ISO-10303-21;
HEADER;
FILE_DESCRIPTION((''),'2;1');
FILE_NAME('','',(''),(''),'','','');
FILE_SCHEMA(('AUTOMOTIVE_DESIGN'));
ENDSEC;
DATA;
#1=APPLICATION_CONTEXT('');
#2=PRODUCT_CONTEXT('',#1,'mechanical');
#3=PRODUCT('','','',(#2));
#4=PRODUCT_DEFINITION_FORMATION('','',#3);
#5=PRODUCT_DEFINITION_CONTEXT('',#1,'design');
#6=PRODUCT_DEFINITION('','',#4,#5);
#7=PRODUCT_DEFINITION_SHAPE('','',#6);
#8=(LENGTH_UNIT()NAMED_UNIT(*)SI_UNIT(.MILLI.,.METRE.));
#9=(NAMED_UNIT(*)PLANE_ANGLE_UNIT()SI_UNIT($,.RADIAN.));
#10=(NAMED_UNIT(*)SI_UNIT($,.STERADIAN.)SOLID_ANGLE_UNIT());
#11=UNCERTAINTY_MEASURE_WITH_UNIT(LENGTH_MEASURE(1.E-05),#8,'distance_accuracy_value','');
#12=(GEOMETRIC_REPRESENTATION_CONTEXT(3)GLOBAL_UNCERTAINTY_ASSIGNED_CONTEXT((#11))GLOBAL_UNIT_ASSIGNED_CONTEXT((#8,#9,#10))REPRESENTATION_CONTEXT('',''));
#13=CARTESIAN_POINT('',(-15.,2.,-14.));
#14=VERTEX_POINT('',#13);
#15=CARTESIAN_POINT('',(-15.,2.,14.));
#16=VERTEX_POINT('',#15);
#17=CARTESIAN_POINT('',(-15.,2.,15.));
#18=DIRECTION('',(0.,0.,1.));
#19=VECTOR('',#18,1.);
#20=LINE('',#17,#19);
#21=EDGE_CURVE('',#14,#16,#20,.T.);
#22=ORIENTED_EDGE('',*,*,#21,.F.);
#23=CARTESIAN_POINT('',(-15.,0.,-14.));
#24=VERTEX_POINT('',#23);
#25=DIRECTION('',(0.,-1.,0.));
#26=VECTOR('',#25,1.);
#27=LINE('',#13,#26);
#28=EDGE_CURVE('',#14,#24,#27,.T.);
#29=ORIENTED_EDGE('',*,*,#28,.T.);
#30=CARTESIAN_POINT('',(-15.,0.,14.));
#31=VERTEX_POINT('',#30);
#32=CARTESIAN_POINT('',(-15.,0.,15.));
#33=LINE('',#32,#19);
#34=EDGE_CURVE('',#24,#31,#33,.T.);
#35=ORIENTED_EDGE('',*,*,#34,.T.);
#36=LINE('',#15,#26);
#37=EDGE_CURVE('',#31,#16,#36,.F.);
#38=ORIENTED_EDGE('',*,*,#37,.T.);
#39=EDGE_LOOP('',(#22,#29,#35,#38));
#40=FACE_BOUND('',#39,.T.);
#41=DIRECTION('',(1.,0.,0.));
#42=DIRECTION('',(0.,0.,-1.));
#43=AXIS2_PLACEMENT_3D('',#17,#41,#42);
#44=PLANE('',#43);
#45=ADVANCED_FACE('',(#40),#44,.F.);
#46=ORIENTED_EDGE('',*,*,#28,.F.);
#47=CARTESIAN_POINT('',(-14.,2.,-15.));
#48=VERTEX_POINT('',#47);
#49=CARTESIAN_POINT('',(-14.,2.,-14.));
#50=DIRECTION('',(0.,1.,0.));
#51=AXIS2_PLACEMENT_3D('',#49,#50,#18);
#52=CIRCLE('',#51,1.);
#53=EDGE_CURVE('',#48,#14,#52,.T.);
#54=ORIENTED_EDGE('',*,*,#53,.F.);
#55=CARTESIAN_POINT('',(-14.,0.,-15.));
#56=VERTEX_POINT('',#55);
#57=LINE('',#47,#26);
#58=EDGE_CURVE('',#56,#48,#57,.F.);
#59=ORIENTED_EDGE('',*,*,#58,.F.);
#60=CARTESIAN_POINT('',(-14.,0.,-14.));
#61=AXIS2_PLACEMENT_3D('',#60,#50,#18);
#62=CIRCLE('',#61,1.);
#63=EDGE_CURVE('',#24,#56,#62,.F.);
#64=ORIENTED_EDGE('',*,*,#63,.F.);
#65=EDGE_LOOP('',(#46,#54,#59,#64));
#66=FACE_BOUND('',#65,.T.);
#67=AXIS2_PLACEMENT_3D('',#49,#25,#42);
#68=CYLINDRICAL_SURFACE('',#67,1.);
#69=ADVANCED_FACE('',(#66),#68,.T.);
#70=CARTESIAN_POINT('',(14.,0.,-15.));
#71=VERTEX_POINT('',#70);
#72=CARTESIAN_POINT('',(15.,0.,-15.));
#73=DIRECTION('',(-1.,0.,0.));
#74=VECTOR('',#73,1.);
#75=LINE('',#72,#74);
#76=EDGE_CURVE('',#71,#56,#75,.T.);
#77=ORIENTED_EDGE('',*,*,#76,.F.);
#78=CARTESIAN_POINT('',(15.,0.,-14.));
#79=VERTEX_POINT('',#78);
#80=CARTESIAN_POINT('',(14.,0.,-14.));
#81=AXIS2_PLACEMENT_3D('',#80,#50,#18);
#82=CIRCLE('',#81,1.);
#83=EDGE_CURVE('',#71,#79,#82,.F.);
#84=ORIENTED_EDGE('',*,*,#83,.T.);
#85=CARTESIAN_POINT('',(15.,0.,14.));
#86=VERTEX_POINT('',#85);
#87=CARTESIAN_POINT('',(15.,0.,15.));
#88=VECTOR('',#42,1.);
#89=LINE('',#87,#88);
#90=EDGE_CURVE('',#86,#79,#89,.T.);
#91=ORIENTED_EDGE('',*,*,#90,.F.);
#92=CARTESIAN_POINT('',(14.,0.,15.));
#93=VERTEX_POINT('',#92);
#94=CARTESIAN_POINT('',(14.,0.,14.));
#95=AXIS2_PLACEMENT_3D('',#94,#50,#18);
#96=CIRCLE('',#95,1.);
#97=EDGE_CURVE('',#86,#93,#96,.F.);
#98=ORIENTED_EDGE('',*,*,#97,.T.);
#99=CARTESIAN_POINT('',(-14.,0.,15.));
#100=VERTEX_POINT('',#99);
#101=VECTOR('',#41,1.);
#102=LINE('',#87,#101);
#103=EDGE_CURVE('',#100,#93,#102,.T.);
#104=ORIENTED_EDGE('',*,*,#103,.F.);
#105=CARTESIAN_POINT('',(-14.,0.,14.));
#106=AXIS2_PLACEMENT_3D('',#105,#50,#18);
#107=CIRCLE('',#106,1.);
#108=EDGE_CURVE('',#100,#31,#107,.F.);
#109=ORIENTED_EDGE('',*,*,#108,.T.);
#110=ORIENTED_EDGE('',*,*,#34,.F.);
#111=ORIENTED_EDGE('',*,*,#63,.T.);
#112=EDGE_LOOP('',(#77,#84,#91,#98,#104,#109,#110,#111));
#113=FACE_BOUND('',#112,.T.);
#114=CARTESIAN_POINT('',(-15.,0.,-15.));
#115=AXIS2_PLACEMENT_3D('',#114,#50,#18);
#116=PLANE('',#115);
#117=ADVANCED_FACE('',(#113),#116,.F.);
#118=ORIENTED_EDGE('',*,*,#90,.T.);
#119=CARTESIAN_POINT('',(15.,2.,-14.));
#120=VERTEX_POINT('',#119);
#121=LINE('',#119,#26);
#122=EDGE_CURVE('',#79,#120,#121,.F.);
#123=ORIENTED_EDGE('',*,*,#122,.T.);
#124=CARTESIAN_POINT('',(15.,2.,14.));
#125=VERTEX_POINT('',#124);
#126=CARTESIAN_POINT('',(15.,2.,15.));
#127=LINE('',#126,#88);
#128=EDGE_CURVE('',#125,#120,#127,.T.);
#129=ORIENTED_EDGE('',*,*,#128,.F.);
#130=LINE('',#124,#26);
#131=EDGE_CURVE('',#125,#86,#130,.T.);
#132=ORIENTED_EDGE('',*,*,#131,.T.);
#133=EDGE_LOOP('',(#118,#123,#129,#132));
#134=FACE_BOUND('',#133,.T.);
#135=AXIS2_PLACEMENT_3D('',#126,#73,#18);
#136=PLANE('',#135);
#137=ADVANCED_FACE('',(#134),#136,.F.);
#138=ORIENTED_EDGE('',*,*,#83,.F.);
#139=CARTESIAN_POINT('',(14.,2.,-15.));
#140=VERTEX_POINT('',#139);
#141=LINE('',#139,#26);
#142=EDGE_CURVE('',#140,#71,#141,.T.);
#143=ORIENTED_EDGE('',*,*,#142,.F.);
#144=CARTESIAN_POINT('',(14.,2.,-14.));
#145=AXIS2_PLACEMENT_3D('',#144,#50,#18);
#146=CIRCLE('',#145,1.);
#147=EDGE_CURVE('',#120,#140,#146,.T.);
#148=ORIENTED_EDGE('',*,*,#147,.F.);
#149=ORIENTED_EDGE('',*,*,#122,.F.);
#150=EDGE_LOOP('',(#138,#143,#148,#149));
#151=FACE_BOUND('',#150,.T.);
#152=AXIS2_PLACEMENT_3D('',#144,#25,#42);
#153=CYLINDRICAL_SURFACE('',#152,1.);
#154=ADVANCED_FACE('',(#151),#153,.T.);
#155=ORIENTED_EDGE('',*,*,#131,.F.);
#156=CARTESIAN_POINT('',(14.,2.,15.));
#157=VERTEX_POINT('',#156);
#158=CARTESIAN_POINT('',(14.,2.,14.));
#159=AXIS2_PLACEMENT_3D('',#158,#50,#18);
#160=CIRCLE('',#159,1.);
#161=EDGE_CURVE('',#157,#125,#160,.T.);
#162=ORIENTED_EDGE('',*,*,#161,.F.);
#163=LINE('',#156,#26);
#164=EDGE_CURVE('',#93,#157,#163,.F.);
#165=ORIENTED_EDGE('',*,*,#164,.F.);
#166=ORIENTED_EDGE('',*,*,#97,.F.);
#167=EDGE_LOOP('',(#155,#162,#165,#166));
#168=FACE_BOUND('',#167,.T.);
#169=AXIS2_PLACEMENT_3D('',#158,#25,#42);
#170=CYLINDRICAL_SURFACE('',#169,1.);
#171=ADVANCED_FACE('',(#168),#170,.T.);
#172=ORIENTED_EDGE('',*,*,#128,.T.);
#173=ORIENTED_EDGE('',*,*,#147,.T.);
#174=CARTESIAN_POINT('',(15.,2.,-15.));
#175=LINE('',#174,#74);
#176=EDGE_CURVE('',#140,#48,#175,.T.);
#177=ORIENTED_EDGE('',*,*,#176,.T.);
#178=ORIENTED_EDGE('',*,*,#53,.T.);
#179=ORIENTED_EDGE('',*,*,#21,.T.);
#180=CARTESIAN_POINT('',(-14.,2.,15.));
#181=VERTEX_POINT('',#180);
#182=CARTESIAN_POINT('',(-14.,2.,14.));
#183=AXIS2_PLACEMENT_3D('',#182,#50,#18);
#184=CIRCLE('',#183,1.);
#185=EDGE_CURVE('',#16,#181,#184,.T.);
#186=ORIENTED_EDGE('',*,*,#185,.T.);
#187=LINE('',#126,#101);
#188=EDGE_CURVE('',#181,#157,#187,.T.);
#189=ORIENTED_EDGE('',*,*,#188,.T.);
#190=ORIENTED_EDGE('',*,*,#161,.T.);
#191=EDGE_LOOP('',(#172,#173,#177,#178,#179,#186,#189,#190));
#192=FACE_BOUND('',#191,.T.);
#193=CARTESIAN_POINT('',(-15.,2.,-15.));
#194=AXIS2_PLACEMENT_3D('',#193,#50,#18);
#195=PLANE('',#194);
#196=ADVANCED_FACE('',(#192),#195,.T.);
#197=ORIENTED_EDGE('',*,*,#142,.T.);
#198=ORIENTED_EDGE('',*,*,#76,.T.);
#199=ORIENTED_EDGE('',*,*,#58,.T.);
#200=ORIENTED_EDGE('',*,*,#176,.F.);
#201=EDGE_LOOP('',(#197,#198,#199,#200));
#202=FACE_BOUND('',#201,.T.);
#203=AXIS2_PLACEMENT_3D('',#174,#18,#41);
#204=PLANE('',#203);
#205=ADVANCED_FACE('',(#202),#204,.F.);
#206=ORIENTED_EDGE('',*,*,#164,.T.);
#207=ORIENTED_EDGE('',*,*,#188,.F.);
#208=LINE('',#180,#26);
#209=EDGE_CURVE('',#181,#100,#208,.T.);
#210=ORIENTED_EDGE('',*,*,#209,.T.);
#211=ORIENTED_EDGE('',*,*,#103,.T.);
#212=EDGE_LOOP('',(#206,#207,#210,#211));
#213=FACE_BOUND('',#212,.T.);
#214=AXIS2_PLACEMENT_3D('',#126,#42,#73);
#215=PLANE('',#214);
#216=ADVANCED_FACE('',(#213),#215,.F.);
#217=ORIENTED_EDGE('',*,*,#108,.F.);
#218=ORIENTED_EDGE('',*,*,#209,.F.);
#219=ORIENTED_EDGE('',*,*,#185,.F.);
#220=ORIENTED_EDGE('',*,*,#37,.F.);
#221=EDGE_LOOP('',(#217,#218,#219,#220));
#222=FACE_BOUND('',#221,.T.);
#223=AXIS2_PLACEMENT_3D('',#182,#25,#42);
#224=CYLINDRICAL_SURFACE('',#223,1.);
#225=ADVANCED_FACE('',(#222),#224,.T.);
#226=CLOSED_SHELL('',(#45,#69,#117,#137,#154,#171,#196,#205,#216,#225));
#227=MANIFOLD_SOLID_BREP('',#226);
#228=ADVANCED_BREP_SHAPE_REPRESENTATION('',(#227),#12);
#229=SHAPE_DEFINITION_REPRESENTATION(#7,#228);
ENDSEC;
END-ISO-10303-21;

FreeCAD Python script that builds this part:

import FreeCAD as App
import Part
import Sketcher
from FreeCAD import Vector
Q = App.Units.Quantity


def edges_at(feature, points):
    """Names of the edges that pass closest to the given points."""
    edges = feature.Shape.Edges
    near = lambda p: min(range(len(edges)), key=lambda i: edges[i].distToShape(Part.Vertex(*p))[0])
    return sorted({f"Edge{near(p) + 1}" for p in points})

doc = App.newDocument("Part")
body = doc.addObject("PartDesign::Body", "Body")

sketch1 = body.newObject("Sketcher::SketchObject", "Sketch")
sketch1.AttachmentSupport = (doc.getObject("XZ_Plane"), [""])
sketch1.MapMode = "FlatFace"
sketch1.addGeometry(Part.LineSegment(Vector(-15, -15, 0), Vector(-15, 15, 0)), False)
sketch1.addGeometry(Part.LineSegment(Vector(-15, 15, 0), Vector(15, 15, 0)), False)
sketch1.addGeometry(Part.LineSegment(Vector(15, 15, 0), Vector(15, -15, 0)), False)
sketch1.addGeometry(Part.LineSegment(Vector(15, -15, 0), Vector(-15, -15, 0)), False)
sketch1.addConstraint(Sketcher.Constraint("Coincident", 0, 2, 1, 1))
sketch1.addConstraint(Sketcher.Constraint("Coincident", 1, 2, 2, 1))
sketch1.addConstraint(Sketcher.Constraint("Coincident", 2, 2, 3, 1))
sketch1.addConstraint(Sketcher.Constraint("Coincident", 3, 2, 0, 1))
sketch1.addConstraint(Sketcher.Constraint("Vertical", 0))
sketch1.addConstraint(Sketcher.Constraint("Horizontal", 1))
sketch1.addConstraint(Sketcher.Constraint("Vertical", 2))
sketch1.addConstraint(Sketcher.Constraint("Horizontal", 3))
sketch1.addConstraint(Sketcher.Constraint("Symmetric", 0, 2, 2, 2, -1, 1))
sketch1.addConstraint(Sketcher.Constraint("Equal", 3, 0))
sketch1.addConstraint(Sketcher.Constraint("DistanceX", 1, 1, 1, 2, Q("30 mm")))
pad1 = body.newObject("PartDesign::Pad", "Pad")
pad1.Profile = sketch1
pad1.Length = 2
pad1.Reversed = True
doc.recompute()

fillet = body.newObject("PartDesign::Fillet", "Fillet")
fillet.Base = (pad1, edges_at(pad1, [
    (-15, 1, -15),
    (15, 1, -15),
    (15, 1, 15),
    (-15, 1, 15),
]))
fillet.Radius = 1

doc.recompute()
